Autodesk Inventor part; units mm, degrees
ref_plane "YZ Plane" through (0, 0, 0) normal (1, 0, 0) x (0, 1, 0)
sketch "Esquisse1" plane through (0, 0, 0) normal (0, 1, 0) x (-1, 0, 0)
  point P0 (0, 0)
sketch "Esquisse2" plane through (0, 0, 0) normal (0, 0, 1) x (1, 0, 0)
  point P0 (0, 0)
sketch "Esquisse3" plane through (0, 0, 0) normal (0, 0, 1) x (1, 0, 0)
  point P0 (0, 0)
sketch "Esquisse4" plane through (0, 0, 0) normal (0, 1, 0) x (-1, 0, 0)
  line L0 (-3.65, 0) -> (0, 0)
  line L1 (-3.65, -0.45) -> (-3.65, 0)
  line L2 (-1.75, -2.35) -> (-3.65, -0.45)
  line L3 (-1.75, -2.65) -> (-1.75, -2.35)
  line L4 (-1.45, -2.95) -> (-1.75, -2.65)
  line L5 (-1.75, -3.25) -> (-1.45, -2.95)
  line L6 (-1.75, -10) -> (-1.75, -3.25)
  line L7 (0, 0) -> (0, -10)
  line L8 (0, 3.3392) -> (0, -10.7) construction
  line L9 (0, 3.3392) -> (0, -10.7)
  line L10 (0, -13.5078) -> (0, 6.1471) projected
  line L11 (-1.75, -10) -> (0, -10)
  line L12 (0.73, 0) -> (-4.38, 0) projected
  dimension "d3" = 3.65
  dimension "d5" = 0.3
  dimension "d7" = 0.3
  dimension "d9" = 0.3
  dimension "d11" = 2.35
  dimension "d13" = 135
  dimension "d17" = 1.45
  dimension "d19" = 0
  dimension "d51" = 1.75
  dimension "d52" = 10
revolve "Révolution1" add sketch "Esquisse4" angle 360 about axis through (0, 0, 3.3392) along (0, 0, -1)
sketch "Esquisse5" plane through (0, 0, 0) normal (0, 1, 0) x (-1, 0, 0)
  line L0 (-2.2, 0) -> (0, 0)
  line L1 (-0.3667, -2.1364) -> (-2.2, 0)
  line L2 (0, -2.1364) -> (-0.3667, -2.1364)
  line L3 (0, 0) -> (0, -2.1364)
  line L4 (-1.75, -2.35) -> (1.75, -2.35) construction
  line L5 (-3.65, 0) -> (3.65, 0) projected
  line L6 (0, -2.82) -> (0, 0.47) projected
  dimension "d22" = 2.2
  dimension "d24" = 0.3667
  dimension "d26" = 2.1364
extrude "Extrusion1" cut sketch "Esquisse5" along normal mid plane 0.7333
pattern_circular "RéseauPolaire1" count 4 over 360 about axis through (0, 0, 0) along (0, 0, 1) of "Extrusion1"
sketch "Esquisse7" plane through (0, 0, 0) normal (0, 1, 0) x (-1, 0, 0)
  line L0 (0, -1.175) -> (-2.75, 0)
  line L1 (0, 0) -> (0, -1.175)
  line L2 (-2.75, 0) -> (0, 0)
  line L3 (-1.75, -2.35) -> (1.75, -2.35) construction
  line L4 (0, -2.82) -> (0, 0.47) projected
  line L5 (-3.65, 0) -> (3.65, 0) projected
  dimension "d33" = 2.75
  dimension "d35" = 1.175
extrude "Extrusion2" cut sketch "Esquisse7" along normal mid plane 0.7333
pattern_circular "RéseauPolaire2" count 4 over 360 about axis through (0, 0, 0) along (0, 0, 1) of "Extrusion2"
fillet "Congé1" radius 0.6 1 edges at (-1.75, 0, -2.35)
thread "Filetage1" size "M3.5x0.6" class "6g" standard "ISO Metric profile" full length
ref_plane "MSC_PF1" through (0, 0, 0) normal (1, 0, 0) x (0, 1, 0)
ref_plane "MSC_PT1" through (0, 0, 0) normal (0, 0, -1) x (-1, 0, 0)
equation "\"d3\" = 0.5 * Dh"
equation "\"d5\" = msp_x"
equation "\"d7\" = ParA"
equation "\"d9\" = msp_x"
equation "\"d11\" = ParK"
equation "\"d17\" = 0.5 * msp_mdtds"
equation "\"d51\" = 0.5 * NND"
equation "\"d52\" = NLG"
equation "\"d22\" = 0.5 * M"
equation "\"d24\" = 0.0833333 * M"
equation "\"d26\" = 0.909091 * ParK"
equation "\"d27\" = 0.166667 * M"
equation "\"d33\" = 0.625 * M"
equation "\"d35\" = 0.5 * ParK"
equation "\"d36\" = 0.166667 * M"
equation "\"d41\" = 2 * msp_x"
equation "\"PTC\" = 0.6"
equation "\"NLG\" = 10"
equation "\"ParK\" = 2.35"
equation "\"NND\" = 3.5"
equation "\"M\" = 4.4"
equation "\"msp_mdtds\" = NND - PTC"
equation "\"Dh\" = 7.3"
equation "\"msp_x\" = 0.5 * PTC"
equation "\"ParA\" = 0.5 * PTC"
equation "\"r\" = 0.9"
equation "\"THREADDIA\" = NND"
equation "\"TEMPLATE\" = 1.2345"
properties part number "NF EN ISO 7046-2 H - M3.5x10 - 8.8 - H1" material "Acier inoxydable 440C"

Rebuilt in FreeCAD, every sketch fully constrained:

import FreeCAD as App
import Part
import Sketcher

V = App.Vector
Q = App.Units.Quantity


def edges_at(feature, points):
    """Names of the edges that pass closest to the given points."""
    edges = feature.Shape.Edges
    near = lambda p: min(range(len(edges)), key=lambda i: edges[i].distToShape(Part.Vertex(*p))[0])
    return sorted({f"Edge{near(p) + 1}" for p in points})

doc = App.newDocument("Part")
body = doc.addObject("PartDesign::Body", "Body")

# Sketch on XZ plane
sketch1 = body.newObject("Sketcher::SketchObject", "Sketch")
sketch1.AttachmentSupport = (doc.getObject("XZ_Plane"), [""])
sketch1.MapMode = "FlatFace"
sketch1.addGeometry([
    Part.LineSegment(V(0, 0, 0), V(3.65, 0, 0)),  # 0
    Part.LineSegment(V(3.65, 0, 0), V(3.65, -0.45, 0)),  # 1
    Part.LineSegment(V(3.65, -0.45, 0), V(1.75, -2.35, 0)),  # 2
    Part.LineSegment(V(1.75, -2.35, 0), V(1.75, -2.65, 0)),  # 3
    Part.LineSegment(V(1.75, -2.65, 0), V(1.45, -2.95, 0)),  # 4
    Part.LineSegment(V(1.45, -2.95, 0), V(1.75, -3.25, 0)),  # 5
    Part.LineSegment(V(1.75, -3.25, 0), V(1.75, -10, 0)),  # 6
    Part.LineSegment(V(1.75, -10, 0), V(0, -10, 0)),  # 7
    Part.LineSegment(V(0, -10, 0), V(0, 0, 0)),  # 8
], False)
sketch1.addConstraint([
    Sketcher.Constraint("Coincident", 0, 2, 1, 1),
    Sketcher.Constraint("Coincident", 1, 2, 2, 1),
    Sketcher.Constraint("Coincident", 2, 2, 3, 1),
    Sketcher.Constraint("Coincident", 3, 2, 4, 1),
    Sketcher.Constraint("Coincident", 4, 2, 5, 1),
    Sketcher.Constraint("Coincident", 5, 2, 6, 1),
    Sketcher.Constraint("Coincident", 6, 2, 7, 1),
    Sketcher.Constraint("Coincident", 7, 2, 8, 1),
    Sketcher.Constraint("Coincident", 8, 2, 0, 1),
    Sketcher.Constraint("Horizontal", 0),
    Sketcher.Constraint("Vertical", 1),
    Sketcher.Constraint("Vertical", 3),
    Sketcher.Constraint("Vertical", 6),
    Sketcher.Constraint("Horizontal", 7),
    Sketcher.Constraint("Vertical", 8),
    Sketcher.Constraint("Coincident", 8, 2, -1, 1),
    Sketcher.Constraint("Parallel", 2, 4),
    Sketcher.Constraint("Perpendicular", 4, 5),
    Sketcher.Constraint("Vertical", 3, 2, 5, 2),
    Sketcher.Constraint("Equal", 4, 5),
    Sketcher.Constraint("DistanceY", 8, 1, 8, 2, Q("10 mm")),
    Sketcher.Constraint("DistanceY", 3, 2, 3, 1, Q("0.3 mm")),
    Sketcher.Constraint("DistanceX", 0, 1, 0, 2, Q("3.65 mm")),
    Sketcher.Constraint("DistanceX", 7, 2, 7, 1, Q("1.75 mm")),
    Sketcher.Constraint("DistanceX", 4, 2, 3, 2, Q("0.3 mm")),
    Sketcher.Constraint("DistanceY", 2, 2, -1, 1, Q("2.35 mm")),
])
revolution = body.newObject("PartDesign::Revolution", "Revolution")
revolution.Profile = sketch1
revolution.ReferenceAxis = (sketch1, ["V_Axis"])
revolution.Angle = 360

# Sketch on XZ plane
sketch2 = body.newObject("Sketcher::SketchObject", "Sketch001")
sketch2.AttachmentSupport = (doc.getObject("XZ_Plane"), [""])
sketch2.MapMode = "FlatFace"
sketch2.addGeometry([
    Part.LineSegment(V(0, 0, 0), V(2.2, 0, 0)),
    Part.LineSegment(V(2.2, 0, 0), V(0.37, -2.14, 0)),
    Part.LineSegment(V(0.37, -2.14, 0), V(0, -2.14, 0)),
    Part.LineSegment(V(0, -2.14, 0), V(0, 0, 0)),
], False)
sketch2.addConstraint([
    Sketcher.Constraint("Coincident", 0, 2, 1, 1),
    Sketcher.Constraint("Coincident", 1, 2, 2, 1),
    Sketcher.Constraint("Coincident", 2, 2, 3, 1),
    Sketcher.Constraint("Coincident", 3, 2, 0, 1),
    Sketcher.Constraint("Horizontal", 0),
    Sketcher.Constraint("Horizontal", 2),
    Sketcher.Constraint("Vertical", 3),
    Sketcher.Constraint("Coincident", 3, 2, -1, 1),
    Sketcher.Constraint("DistanceX", 0, 1, 0, 2, Q("2.2 mm")),
    Sketcher.Constraint("DistanceX", 2, 2, 2, 1, Q("0.3667 mm")),
    Sketcher.Constraint("DistanceY", 3, 1, 3, 2, Q("2.1364 mm")),
])
pocket1 = body.newObject("PartDesign::Pocket", "Pocket")
pocket1.Profile = sketch2
pocket1.Length = 0.7333
pocket1.Midplane = True
doc.recompute()

polarpattern = body.newObject("PartDesign::PolarPattern", "PolarPattern")
polarpattern.Originals = [pocket1]
polarpattern.Axis = (doc.getObject("Z_Axis"), [""])
polarpattern.Angle = 360
polarpattern.Occurrences = 4
body.Tip = polarpattern

# Sketch on XZ plane
sketch3 = body.newObject("Sketcher::SketchObject", "Sketch002")
sketch3.AttachmentSupport = (doc.getObject("XZ_Plane"), [""])
sketch3.MapMode = "FlatFace"
sketch3.addGeometry([
    Part.LineSegment(V(2.8, 0, 0), V(0, -1.2, 0)),
    Part.LineSegment(V(0, -1.2, 0), V(0, 0, 0)),
    Part.LineSegment(V(0, 0, 0), V(2.8, 0, 0)),
], False)
sketch3.addConstraint([
    Sketcher.Constraint("Coincident", 0, 2, 1, 1),
    Sketcher.Constraint("Coincident", 1, 2, 2, 1),
    Sketcher.Constraint("Coincident", 2, 2, 0, 1),
    Sketcher.Constraint("Vertical", 1),
    Sketcher.Constraint("Horizontal", 2),
    Sketcher.Constraint("Coincident", 1, 2, -1, 1),
    Sketcher.Constraint("DistanceX", 2, 1, 2, 2, Q("2.75 mm")),
    Sketcher.Constraint("DistanceY", 1, 1, 1, 2, Q("1.175 mm")),
])
pocket2 = body.newObject("PartDesign::Pocket", "Pocket001")
pocket2.Profile = sketch3
pocket2.Length = 0.7333
pocket2.Midplane = True
doc.recompute()

polarpattern2 = body.newObject("PartDesign::PolarPattern", "PolarPattern001")
polarpattern2.Originals = [pocket2]
polarpattern2.Axis = (doc.getObject("Z_Axis"), [""])
polarpattern2.Angle = 360
polarpattern2.Occurrences = 4
body.Tip = polarpattern2
doc.recompute()

fillet = body.newObject("PartDesign::Fillet", "Fillet")
fillet.Base = (polarpattern2, edges_at(polarpattern2, [(-1.75, 0, -2.35)]))
fillet.Radius = 0.6

doc.recompute()
